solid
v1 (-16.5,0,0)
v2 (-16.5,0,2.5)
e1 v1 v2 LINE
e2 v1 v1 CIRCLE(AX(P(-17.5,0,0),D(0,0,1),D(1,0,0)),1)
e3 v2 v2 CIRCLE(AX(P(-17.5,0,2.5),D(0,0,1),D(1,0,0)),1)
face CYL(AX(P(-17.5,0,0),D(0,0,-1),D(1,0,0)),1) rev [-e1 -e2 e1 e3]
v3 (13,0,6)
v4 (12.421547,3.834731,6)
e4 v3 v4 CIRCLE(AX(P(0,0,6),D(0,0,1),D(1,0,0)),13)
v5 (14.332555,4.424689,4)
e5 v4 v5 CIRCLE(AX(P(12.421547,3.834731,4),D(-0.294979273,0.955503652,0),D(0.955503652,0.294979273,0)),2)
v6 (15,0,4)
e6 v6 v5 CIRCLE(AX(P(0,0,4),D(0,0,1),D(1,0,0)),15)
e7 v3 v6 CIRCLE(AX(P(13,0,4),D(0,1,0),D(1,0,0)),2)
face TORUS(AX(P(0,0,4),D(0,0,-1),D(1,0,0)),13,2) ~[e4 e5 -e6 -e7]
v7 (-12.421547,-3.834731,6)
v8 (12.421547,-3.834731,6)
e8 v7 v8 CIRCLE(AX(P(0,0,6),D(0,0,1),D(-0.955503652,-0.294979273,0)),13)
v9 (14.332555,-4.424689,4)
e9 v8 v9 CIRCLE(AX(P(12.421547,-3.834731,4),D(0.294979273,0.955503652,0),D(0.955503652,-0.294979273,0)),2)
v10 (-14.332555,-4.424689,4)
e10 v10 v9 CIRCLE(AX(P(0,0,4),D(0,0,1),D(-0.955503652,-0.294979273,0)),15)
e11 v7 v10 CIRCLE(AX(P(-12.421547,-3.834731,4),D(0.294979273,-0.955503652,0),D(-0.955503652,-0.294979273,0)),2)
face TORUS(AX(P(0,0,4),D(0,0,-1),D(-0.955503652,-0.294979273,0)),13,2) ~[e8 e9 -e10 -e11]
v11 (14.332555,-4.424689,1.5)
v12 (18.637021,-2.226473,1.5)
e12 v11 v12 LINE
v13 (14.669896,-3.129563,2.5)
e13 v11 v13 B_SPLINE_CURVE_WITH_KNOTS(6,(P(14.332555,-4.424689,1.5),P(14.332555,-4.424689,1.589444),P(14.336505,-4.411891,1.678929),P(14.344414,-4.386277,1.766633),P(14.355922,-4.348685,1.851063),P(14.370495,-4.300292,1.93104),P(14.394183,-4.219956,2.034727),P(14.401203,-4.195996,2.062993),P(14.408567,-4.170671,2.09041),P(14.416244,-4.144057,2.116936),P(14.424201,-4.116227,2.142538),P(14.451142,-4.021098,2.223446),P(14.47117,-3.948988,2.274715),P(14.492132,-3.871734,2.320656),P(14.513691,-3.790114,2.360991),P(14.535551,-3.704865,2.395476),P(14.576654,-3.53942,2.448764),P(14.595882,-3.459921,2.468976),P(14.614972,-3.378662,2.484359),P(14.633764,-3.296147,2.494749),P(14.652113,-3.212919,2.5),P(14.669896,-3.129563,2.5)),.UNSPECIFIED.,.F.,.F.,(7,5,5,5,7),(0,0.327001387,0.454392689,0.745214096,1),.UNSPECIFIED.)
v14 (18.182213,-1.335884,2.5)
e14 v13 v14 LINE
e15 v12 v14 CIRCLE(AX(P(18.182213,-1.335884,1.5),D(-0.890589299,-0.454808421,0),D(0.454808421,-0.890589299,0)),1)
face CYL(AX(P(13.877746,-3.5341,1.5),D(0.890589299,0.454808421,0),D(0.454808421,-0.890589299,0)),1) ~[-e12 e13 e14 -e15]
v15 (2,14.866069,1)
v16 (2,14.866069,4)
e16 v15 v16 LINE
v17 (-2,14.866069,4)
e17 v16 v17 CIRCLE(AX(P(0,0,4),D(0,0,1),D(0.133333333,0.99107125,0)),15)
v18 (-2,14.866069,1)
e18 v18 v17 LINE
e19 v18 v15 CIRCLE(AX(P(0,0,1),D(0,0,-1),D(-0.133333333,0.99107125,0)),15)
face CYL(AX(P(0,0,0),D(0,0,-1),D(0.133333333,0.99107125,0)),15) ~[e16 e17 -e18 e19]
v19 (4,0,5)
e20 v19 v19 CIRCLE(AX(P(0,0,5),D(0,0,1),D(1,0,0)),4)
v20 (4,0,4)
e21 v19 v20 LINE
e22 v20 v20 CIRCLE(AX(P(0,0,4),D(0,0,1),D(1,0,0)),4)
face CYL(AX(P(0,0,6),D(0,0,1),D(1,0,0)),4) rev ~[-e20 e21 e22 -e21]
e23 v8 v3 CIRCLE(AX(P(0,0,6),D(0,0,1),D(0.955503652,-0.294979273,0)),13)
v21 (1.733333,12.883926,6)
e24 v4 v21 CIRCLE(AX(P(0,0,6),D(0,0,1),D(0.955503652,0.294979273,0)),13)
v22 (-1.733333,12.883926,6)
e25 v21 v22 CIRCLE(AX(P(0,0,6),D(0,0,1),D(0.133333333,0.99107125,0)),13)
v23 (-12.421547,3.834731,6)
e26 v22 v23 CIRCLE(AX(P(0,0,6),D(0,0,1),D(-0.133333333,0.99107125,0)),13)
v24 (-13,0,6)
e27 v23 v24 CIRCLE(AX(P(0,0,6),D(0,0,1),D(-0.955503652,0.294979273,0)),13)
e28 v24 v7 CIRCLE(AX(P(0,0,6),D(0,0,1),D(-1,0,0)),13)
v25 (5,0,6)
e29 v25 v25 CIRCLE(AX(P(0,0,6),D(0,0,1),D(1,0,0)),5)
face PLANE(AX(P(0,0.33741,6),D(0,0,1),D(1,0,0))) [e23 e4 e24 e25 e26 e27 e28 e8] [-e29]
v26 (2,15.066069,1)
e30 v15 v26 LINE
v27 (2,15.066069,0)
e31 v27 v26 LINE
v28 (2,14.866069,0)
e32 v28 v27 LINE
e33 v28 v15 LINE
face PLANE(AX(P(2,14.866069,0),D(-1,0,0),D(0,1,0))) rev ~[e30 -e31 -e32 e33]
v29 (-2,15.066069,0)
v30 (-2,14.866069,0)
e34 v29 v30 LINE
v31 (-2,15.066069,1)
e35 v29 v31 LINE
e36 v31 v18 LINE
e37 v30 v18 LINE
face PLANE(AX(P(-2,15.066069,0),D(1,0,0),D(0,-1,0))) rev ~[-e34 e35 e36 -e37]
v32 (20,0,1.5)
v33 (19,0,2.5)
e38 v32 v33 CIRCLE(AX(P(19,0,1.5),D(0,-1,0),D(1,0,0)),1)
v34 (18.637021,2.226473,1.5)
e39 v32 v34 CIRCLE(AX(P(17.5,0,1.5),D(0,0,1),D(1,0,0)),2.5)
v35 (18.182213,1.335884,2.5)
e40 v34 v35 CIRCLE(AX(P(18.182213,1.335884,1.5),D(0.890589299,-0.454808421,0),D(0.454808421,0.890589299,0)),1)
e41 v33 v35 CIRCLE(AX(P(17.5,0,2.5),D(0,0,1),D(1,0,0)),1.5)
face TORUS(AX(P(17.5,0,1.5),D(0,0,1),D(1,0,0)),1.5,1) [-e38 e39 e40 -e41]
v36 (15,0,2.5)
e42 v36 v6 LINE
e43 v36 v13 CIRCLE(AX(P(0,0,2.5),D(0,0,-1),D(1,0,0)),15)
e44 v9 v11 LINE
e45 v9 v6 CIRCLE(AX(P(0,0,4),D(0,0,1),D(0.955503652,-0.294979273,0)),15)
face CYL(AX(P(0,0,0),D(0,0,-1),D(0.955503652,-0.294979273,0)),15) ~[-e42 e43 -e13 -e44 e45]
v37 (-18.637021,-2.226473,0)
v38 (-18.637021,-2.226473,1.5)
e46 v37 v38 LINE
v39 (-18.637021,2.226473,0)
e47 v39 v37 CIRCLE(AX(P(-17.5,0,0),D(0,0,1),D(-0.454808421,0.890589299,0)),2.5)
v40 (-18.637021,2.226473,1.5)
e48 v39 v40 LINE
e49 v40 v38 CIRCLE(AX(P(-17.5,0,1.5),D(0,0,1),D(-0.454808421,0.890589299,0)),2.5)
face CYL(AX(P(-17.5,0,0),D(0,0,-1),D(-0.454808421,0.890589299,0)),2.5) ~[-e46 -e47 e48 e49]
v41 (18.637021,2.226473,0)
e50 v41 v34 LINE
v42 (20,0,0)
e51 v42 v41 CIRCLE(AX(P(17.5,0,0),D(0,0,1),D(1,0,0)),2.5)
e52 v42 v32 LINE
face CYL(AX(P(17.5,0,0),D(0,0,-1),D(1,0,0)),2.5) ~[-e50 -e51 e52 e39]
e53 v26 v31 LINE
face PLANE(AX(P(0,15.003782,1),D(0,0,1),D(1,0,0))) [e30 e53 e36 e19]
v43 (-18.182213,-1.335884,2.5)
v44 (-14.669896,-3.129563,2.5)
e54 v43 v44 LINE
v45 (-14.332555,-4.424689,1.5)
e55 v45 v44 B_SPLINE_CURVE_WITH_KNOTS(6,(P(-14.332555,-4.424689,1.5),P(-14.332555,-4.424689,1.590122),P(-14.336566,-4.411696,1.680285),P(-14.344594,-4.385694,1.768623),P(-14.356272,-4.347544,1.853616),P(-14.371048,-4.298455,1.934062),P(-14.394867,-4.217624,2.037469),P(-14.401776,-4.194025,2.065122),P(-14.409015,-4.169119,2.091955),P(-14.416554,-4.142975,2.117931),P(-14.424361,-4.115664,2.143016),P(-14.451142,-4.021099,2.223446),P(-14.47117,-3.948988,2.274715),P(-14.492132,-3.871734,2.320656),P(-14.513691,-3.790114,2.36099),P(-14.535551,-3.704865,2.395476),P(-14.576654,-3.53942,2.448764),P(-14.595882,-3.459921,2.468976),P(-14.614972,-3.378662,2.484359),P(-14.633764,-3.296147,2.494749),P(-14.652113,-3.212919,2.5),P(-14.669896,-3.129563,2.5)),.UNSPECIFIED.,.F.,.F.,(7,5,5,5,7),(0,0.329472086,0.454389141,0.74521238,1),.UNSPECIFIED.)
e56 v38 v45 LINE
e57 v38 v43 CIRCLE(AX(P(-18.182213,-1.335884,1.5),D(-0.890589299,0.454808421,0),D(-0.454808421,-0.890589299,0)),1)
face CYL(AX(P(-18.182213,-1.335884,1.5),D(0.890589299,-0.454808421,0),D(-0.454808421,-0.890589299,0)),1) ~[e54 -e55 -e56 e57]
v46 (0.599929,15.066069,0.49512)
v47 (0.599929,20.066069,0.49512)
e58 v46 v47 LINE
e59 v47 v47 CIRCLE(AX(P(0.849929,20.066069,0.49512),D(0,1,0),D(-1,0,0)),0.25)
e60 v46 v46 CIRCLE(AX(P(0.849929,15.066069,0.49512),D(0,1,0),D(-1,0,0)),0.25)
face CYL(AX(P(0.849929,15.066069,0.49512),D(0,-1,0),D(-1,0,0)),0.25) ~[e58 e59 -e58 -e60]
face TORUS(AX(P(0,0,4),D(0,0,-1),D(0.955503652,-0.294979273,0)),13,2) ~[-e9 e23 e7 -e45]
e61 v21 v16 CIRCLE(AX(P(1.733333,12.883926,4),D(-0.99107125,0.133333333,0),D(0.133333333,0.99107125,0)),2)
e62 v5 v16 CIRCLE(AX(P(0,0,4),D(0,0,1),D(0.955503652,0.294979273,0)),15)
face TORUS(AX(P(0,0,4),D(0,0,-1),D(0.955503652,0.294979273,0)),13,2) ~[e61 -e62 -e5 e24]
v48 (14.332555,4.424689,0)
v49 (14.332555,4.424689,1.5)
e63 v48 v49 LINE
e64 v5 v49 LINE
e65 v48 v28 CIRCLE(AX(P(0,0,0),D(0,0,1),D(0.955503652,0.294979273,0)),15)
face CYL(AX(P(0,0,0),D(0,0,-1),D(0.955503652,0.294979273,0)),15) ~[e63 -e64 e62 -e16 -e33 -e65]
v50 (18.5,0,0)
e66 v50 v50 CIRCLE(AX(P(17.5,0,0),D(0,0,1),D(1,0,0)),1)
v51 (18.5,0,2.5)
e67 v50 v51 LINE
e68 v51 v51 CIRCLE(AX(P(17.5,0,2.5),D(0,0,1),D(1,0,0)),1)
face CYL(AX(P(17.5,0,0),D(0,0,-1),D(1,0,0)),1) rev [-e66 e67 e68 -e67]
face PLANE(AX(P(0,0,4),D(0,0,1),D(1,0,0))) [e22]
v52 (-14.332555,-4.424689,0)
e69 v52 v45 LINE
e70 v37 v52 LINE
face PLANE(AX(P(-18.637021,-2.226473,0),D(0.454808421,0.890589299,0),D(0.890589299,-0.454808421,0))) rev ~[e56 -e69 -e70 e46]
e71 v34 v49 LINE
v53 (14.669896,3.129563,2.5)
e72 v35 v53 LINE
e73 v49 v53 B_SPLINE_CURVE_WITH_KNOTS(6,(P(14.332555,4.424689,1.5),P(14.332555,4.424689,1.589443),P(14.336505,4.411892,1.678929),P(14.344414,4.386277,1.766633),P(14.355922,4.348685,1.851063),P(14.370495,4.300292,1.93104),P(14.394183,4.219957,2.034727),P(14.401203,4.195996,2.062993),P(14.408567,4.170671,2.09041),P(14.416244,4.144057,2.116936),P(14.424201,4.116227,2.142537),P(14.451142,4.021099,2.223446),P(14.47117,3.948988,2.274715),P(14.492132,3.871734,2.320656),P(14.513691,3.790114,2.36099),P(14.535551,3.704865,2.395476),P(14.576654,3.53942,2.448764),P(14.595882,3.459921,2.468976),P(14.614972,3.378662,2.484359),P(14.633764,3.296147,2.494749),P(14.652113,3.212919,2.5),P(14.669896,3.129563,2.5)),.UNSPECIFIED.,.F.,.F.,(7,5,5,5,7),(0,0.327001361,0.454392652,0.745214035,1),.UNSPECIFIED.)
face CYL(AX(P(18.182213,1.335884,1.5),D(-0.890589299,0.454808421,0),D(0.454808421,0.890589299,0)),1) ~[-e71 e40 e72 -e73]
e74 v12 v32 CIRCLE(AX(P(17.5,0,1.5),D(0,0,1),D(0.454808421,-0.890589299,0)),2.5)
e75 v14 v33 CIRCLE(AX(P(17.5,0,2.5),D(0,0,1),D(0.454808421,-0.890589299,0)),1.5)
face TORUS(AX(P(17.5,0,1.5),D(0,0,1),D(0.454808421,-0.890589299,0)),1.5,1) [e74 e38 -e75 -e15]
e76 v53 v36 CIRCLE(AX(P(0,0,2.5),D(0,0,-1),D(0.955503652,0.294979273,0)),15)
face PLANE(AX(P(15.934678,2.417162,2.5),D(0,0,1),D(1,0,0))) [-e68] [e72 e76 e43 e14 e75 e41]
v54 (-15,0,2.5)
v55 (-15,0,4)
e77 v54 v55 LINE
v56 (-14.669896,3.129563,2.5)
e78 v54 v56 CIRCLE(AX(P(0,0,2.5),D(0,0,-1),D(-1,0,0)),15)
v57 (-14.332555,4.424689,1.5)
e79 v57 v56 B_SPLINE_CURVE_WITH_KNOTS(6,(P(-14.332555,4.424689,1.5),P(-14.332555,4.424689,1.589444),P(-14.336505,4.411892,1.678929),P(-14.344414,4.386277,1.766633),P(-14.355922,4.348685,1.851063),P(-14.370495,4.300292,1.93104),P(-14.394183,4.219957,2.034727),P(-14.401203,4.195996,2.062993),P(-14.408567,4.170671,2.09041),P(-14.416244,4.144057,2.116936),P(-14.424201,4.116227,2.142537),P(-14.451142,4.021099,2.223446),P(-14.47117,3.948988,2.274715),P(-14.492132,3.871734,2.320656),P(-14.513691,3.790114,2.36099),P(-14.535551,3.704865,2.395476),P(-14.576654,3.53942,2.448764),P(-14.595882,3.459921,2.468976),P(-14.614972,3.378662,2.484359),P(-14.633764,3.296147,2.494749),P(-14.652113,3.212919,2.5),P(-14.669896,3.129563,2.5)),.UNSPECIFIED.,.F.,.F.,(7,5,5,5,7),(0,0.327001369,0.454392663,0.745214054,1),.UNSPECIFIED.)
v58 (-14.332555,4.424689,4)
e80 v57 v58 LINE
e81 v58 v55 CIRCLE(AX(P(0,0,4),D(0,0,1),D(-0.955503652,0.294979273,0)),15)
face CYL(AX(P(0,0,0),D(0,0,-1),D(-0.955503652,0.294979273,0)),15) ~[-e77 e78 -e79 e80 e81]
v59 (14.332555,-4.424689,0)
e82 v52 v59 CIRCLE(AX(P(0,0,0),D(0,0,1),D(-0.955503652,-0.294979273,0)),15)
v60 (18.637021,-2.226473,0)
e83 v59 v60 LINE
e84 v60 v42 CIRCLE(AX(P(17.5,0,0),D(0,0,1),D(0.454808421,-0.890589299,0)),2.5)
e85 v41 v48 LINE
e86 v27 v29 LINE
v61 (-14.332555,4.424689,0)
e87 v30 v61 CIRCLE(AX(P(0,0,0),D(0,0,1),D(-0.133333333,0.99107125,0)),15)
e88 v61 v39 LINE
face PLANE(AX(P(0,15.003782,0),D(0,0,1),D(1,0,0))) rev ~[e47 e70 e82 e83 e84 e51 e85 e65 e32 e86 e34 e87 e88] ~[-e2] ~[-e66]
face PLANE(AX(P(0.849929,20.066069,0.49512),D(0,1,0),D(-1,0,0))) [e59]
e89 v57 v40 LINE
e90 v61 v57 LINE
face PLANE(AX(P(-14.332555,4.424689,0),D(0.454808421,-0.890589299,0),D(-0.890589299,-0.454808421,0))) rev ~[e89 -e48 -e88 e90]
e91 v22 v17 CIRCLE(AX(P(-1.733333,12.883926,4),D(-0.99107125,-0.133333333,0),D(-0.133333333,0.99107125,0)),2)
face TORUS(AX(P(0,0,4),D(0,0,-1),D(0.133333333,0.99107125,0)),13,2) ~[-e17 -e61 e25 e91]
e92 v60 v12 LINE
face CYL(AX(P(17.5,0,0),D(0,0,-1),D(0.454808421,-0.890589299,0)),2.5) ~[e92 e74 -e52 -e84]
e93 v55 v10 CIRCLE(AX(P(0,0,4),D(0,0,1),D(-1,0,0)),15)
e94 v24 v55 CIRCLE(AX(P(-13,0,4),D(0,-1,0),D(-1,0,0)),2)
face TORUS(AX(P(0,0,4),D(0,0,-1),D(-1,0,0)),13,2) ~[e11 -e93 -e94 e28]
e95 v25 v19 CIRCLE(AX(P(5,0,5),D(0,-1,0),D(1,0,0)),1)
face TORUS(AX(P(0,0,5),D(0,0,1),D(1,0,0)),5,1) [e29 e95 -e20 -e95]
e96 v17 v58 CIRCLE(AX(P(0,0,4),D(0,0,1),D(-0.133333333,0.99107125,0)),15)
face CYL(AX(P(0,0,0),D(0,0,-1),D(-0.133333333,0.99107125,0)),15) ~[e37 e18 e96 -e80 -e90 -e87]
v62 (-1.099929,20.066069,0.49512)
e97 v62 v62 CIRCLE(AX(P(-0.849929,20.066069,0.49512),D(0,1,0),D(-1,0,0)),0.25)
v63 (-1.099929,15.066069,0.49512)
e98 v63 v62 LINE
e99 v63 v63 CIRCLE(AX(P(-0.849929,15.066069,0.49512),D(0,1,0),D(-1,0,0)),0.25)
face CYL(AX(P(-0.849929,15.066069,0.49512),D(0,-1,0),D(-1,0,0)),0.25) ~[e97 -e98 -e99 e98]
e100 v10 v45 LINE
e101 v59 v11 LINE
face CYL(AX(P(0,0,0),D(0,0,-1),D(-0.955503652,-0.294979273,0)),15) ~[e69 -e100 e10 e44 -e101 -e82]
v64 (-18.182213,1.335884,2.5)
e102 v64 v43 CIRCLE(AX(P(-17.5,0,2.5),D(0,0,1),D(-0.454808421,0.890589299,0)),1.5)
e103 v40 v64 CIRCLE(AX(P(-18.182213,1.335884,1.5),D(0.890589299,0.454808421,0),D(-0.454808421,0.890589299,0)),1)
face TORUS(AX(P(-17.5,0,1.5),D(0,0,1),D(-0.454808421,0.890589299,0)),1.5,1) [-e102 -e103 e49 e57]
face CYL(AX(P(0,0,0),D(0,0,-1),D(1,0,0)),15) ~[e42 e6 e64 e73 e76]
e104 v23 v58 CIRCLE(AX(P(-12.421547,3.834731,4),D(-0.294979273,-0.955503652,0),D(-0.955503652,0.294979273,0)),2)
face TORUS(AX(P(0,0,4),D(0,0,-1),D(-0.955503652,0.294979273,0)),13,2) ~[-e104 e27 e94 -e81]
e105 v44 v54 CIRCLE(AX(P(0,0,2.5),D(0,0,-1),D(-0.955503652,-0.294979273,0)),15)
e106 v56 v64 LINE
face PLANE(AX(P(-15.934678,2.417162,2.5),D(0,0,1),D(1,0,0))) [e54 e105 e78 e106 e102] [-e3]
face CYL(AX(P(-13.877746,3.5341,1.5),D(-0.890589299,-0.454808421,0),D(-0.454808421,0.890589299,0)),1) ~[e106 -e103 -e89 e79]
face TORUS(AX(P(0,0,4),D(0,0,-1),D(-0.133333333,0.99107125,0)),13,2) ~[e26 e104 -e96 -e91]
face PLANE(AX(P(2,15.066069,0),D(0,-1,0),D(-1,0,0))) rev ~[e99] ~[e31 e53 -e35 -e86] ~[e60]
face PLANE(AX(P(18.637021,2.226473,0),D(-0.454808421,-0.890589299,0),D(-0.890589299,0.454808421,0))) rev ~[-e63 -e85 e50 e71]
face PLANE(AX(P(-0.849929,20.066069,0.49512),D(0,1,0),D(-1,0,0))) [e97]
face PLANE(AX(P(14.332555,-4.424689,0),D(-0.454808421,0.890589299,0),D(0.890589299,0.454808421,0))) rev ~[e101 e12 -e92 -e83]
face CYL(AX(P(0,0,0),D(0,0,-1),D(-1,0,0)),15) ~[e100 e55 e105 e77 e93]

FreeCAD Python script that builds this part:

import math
import FreeCAD as App
import Part
import Sketcher
from FreeCAD import Vector
Q = App.Units.Quantity


def edges_at(feature, points):
    """Names of the edges that pass closest to the given points."""
    edges = feature.Shape.Edges
    near = lambda p: min(range(len(edges)), key=lambda i: edges[i].distToShape(Part.Vertex(*p))[0])
    return sorted({f"Edge{near(p) + 1}" for p in points})

doc = App.newDocument("Part")
body = doc.addObject("PartDesign::Body", "Body")

sketch1 = body.newObject("Sketcher::SketchObject", "Sketch")
sketch1.AttachmentSupport = (doc.getObject("XY_Plane"), [""])
sketch1.MapMode = "FlatFace"
sketch1.addGeometry([
    Part.ArcOfCircle(Part.Circle(Vector(0, 0, 0), Vector(0, 0, 1), 15), math.radians(-17.16), math.radians(0)),
    Part.ArcOfCircle(Part.Circle(Vector(0, 0, 0), Vector(0, 0, 1), 15), math.radians(0), math.radians(17.16)),
    Part.ArcOfCircle(Part.Circle(Vector(0, 0, 0), Vector(0, 0, 1), 15), math.radians(17), math.radians(82)),
    Part.ArcOfCircle(Part.Circle(Vector(0, 0, 0), Vector(0, 0, 1), 15), math.radians(82.34), math.radians(97.66)),
    Part.ArcOfCircle(Part.Circle(Vector(0, 0, 0), Vector(0, 0, 1), 15), math.radians(98), math.radians(163)),
    Part.ArcOfCircle(Part.Circle(Vector(0, 0, 0), Vector(0, 0, 1), 15), math.radians(162.84), math.radians(180)),
    Part.ArcOfCircle(Part.Circle(Vector(0, 0, 0), Vector(0, 0, 1), 15), math.radians(-180), math.radians(-162.84)),
    Part.ArcOfCircle(Part.Circle(Vector(0, 0, 0), Vector(0, 0, 1), 15), math.radians(-163), math.radians(-17)),
], False)
sketch1.addConstraint([
    Sketcher.Constraint("Tangent", 0, 2, 1, 1),
    Sketcher.Constraint("Tangent", 1, 2, 2, 1),
    Sketcher.Constraint("Tangent", 2, 2, 3, 1),
    Sketcher.Constraint("Tangent", 3, 2, 4, 1),
    Sketcher.Constraint("Tangent", 4, 2, 5, 1),
    Sketcher.Constraint("Tangent", 5, 2, 6, 1),
    Sketcher.Constraint("Tangent", 6, 2, 7, 1),
    Sketcher.Constraint("Tangent", 7, 2, 0, 1),
    Sketcher.Constraint("Coincident", 0, 3, -1, 1),
    Sketcher.Constraint("Coincident", 2, 3, -1, 1),
    Sketcher.Constraint("Coincident", 4, 3, -1, 1),
    Sketcher.Constraint("Equal", 4, 5),
    Sketcher.Constraint("PointOnObject", 0, 2, -1),
    Sketcher.Constraint("PointOnObject", 5, 2, -1),
    Sketcher.Constraint("Horizontal", 2, 2, 3, 2),
    Sketcher.Constraint("Horizontal", 1, 2, 4, 2),
    Sketcher.Constraint("Horizontal", 6, 2, 7, 2),
    Sketcher.Constraint("Vertical", 4, 2, 6, 2),
    Sketcher.Constraint("Radius", 0, Q("15 mm")),
    Sketcher.Constraint("DistanceX", -1, 1, 2, 2, Q("2 mm")),
    Sketcher.Constraint("DistanceY", -1, 1, 1, 2, Q("4.424689 mm")),
])
pad1 = body.newObject("PartDesign::Pad", "Pad")
pad1.Profile = sketch1
pad1.Length = 6

sketch2 = body.newObject("Sketcher::SketchObject", "Sketch001")
sketch2.AttachmentSupport = (doc.getObject("XY_Plane"), [""])
sketch2.MapMode = "FlatFace"
sketch2.addGeometry([
    Part.ArcOfCircle(Part.Circle(Vector(0, 0, 0), Vector(0, 0, 1), 15), math.radians(162.84), math.radians(180)),
    Part.LineSegment(Vector(-14.3, 4.4, 0), Vector(-18.6, 2.2, 0)),
    Part.ArcOfCircle(Part.Circle(Vector(-17.5, 0, 0), Vector(0, 0, 1), 2.5), math.radians(117), math.radians(243)),
    Part.LineSegment(Vector(-18.6, -2.2, 0), Vector(-14.3, -4.4, 0)),
    Part.ArcOfCircle(Part.Circle(Vector(0, 0, 0), Vector(0, 0, 1), 15), math.radians(-180), math.radians(-162.84)),
    Part.Circle(Vector(-17.5, 0, 0), Vector(0, 0, 1), 1),
    Part.ArcOfCircle(Part.Circle(Vector(0, 0, 0), Vector(0, 0, 1), 15), math.radians(0), math.radians(17.16)),
    Part.ArcOfCircle(Part.Circle(Vector(0, 0, 0), Vector(0, 0, 1), 15), math.radians(-17.16), math.radians(0)),
    Part.LineSegment(Vector(14.3, -4.4, 0), Vector(18.6, -2.2, 0)),
    Part.ArcOfCircle(Part.Circle(Vector(17.5, 0, 0), Vector(0, 0, 1), 2.5), math.radians(-63), math.radians(0)),
    Part.ArcOfCircle(Part.Circle(Vector(17.5, 0, 0), Vector(0, 0, 1), 2.5), math.radians(0), math.radians(63)),
    Part.LineSegment(Vector(18.6, 2.2, 0), Vector(14.3, 4.4, 0)),
    Part.Circle(Vector(17.5, 0, 0), Vector(0, 0, 1), 1),
], False)
sketch2.addConstraint([
    Sketcher.Constraint("Coincident", 0, 1, 1, 1),
    Sketcher.Constraint("Tangent", 1, 2, 2, 1),
    Sketcher.Constraint("Tangent", 2, 2, 3, 1),
    Sketcher.Constraint("Coincident", 3, 2, 4, 2),
    Sketcher.Constraint("Tangent", 4, 1, 0, 2),
    Sketcher.Constraint("Tangent", 6, 1, 7, 2),
    Sketcher.Constraint("Coincident", 7, 1, 8, 1),
    Sketcher.Constraint("Tangent", 8, 2, 9, 1),
    Sketcher.Constraint("Tangent", 9, 2, 10, 1),
    Sketcher.Constraint("Tangent", 10, 2, 11, 1),
    Sketcher.Constraint("Coincident", 11, 2, 6, 2),
    Sketcher.Constraint("Coincident", 0, 3, -1, 1),
    Sketcher.Constraint("Coincident", 6, 3, -1, 1),
    Sketcher.Constraint("Coincident", 5, 3, 2, 3),
    Sketcher.Constraint("Coincident", 12, 3, 9, 3),
    Sketcher.Constraint("Equal", 0, 4),
    Sketcher.Constraint("Equal", 4, 6),
    Sketcher.Constraint("Equal", 6, 7),
    Sketcher.Constraint("Equal", 2, 9),
    Sketcher.Constraint("Equal", 9, 10),
    Sketcher.Constraint("Equal", 5, 12),
    Sketcher.Constraint("Symmetric", 2, 3, 9, 3, -1, 1),
    Sketcher.Constraint("Symmetric", 2, 2, 8, 2, -2),
    Sketcher.Constraint("PointOnObject", 4, 1, -1),
    Sketcher.Constraint("PointOnObject", 6, 1, -1),
    Sketcher.Constraint("PointOnObject", 9, 2, -1),
    Sketcher.Constraint("Parallel", 1, 8),
    Sketcher.Constraint("Parallel", 3, 11),
    Sketcher.Constraint("Diameter", 5, Q("2 mm")),
    Sketcher.Constraint("Radius", 0, Q("15 mm")),
    Sketcher.Constraint("Radius", 2, Q("2.5 mm")),
    Sketcher.Constraint("DistanceX", -1, 1, 9, 2, Q("20 mm")),
    Sketcher.Constraint("Distance", 1, Q("4.833279 mm")),
])
pad2 = body.newObject("PartDesign::Pad", "Pad001")
pad2.Profile = sketch2
pad2.Length = 2.5

sketch3 = body.newObject("Sketcher::SketchObject", "Sketch002")
sketch3.AttachmentSupport = (doc.getObject("XY_Plane"), [""])
sketch3.MapMode = "FlatFace"
sketch3.AttachmentOffset = App.Placement(Vector(0, 0, 6), App.Rotation())
sketch3.addGeometry(Part.Circle(Vector(0, 0, 0), Vector(0, 0, 1), 4), False)
sketch3.addConstraint([
    Sketcher.Constraint("Coincident", 0, 3, -1, 1),
    Sketcher.Constraint("Diameter", 0, Q("8 mm")),
])
pocket1 = body.newObject("PartDesign::Pocket", "Pocket")
pocket1.Profile = sketch3
pocket1.Length = 2
doc.recompute()

fillet = body.newObject("PartDesign::Fillet", "Fillet")
fillet.Base = (pocket1, edges_at(pocket1, [(14.832, -2.237, 6)]))
fillet.Radius = 2

sketch4 = body.newObject("Sketcher::SketchObject", "Sketch003")
sketch4.AttachmentSupport = (doc.getObject("XY_Plane"), [""])
sketch4.MapMode = "FlatFace"
sketch4.addGeometry([
    Part.ArcOfCircle(Part.Circle(Vector(0, 0, 0), Vector(0, 0, 1), 15), math.radians(82.34), math.radians(97.66)),
    Part.LineSegment(Vector(2, 14.87, 0), Vector(2, 15.07, 0)),
    Part.LineSegment(Vector(2, 15.07, 0), Vector(-2, 15.07, 0)),
    Part.LineSegment(Vector(-2, 15.07, 0), Vector(-2, 14.87, 0)),
], False)
sketch4.addConstraint([
    Sketcher.Constraint("Coincident", 0, 1, 1, 1),
    Sketcher.Constraint("Coincident", 1, 2, 2, 1),
    Sketcher.Constraint("Coincident", 2, 2, 3, 1),
    Sketcher.Constraint("Coincident", 3, 2, 0, 2),
    Sketcher.Constraint("Vertical", 1),
    Sketcher.Constraint("Horizontal", 2),
    Sketcher.Constraint("Vertical", 3),
    Sketcher.Constraint("Coincident", 0, 3, -1, 1),
    Sketcher.Constraint("Horizontal", 0, 1, 3, 2),
    Sketcher.Constraint("Radius", 0, Q("15 mm")),
    Sketcher.Constraint("DistanceX", 2, 2, 2, 1, Q("4 mm")),
    Sketcher.Constraint("DistanceY", 1, 1, 1, 2, Q("0.2 mm")),
])
pad3 = body.newObject("PartDesign::Pad", "Pad002")
pad3.Profile = sketch4
pad3.Length = 1

sketch5 = body.newObject("Sketcher::SketchObject", "Sketch004")
sketch5.AttachmentSupport = (doc.getObject("XZ_Plane"), [""])
sketch5.MapMode = "FlatFace"
sketch5.AttachmentOffset = App.Placement(Vector(0, 0, -15.066069), App.Rotation())
sketch5.addGeometry([
    Part.Circle(Vector(0.85, 0.5, 0), Vector(0, 0, 1), 0.25),
    Part.Circle(Vector(-0.85, 0.5, 0), Vector(0, 0, 1), 0.25),
], False)
sketch5.addConstraint([
    Sketcher.Constraint("Equal", 0, 1),
    Sketcher.Constraint("Symmetric", 0, 3, 1, 3, -2),
    Sketcher.Constraint("Diameter", 0, Q("0.5 mm")),
    Sketcher.Constraint("DistanceX", -1, 1, 0, 3, Q("0.849929 mm")),
    Sketcher.Constraint("DistanceY", -1, 1, 0, 3, Q("0.49512 mm")),
])
pad4 = body.newObject("PartDesign::Pad", "Pad003")
pad4.Profile = sketch5
pad4.Length = 5
pad4.Reversed = True
doc.recompute()

fillet2 = body.newObject("PartDesign::Fillet", "Fillet001")
fillet2.Base = (pad4, edges_at(pad4, [(16.485, -3.326, 2.5), (-16.485, 3.326, 2.5), (-4, 0, 6)]))
fillet2.Radius = 1

doc.recompute()
